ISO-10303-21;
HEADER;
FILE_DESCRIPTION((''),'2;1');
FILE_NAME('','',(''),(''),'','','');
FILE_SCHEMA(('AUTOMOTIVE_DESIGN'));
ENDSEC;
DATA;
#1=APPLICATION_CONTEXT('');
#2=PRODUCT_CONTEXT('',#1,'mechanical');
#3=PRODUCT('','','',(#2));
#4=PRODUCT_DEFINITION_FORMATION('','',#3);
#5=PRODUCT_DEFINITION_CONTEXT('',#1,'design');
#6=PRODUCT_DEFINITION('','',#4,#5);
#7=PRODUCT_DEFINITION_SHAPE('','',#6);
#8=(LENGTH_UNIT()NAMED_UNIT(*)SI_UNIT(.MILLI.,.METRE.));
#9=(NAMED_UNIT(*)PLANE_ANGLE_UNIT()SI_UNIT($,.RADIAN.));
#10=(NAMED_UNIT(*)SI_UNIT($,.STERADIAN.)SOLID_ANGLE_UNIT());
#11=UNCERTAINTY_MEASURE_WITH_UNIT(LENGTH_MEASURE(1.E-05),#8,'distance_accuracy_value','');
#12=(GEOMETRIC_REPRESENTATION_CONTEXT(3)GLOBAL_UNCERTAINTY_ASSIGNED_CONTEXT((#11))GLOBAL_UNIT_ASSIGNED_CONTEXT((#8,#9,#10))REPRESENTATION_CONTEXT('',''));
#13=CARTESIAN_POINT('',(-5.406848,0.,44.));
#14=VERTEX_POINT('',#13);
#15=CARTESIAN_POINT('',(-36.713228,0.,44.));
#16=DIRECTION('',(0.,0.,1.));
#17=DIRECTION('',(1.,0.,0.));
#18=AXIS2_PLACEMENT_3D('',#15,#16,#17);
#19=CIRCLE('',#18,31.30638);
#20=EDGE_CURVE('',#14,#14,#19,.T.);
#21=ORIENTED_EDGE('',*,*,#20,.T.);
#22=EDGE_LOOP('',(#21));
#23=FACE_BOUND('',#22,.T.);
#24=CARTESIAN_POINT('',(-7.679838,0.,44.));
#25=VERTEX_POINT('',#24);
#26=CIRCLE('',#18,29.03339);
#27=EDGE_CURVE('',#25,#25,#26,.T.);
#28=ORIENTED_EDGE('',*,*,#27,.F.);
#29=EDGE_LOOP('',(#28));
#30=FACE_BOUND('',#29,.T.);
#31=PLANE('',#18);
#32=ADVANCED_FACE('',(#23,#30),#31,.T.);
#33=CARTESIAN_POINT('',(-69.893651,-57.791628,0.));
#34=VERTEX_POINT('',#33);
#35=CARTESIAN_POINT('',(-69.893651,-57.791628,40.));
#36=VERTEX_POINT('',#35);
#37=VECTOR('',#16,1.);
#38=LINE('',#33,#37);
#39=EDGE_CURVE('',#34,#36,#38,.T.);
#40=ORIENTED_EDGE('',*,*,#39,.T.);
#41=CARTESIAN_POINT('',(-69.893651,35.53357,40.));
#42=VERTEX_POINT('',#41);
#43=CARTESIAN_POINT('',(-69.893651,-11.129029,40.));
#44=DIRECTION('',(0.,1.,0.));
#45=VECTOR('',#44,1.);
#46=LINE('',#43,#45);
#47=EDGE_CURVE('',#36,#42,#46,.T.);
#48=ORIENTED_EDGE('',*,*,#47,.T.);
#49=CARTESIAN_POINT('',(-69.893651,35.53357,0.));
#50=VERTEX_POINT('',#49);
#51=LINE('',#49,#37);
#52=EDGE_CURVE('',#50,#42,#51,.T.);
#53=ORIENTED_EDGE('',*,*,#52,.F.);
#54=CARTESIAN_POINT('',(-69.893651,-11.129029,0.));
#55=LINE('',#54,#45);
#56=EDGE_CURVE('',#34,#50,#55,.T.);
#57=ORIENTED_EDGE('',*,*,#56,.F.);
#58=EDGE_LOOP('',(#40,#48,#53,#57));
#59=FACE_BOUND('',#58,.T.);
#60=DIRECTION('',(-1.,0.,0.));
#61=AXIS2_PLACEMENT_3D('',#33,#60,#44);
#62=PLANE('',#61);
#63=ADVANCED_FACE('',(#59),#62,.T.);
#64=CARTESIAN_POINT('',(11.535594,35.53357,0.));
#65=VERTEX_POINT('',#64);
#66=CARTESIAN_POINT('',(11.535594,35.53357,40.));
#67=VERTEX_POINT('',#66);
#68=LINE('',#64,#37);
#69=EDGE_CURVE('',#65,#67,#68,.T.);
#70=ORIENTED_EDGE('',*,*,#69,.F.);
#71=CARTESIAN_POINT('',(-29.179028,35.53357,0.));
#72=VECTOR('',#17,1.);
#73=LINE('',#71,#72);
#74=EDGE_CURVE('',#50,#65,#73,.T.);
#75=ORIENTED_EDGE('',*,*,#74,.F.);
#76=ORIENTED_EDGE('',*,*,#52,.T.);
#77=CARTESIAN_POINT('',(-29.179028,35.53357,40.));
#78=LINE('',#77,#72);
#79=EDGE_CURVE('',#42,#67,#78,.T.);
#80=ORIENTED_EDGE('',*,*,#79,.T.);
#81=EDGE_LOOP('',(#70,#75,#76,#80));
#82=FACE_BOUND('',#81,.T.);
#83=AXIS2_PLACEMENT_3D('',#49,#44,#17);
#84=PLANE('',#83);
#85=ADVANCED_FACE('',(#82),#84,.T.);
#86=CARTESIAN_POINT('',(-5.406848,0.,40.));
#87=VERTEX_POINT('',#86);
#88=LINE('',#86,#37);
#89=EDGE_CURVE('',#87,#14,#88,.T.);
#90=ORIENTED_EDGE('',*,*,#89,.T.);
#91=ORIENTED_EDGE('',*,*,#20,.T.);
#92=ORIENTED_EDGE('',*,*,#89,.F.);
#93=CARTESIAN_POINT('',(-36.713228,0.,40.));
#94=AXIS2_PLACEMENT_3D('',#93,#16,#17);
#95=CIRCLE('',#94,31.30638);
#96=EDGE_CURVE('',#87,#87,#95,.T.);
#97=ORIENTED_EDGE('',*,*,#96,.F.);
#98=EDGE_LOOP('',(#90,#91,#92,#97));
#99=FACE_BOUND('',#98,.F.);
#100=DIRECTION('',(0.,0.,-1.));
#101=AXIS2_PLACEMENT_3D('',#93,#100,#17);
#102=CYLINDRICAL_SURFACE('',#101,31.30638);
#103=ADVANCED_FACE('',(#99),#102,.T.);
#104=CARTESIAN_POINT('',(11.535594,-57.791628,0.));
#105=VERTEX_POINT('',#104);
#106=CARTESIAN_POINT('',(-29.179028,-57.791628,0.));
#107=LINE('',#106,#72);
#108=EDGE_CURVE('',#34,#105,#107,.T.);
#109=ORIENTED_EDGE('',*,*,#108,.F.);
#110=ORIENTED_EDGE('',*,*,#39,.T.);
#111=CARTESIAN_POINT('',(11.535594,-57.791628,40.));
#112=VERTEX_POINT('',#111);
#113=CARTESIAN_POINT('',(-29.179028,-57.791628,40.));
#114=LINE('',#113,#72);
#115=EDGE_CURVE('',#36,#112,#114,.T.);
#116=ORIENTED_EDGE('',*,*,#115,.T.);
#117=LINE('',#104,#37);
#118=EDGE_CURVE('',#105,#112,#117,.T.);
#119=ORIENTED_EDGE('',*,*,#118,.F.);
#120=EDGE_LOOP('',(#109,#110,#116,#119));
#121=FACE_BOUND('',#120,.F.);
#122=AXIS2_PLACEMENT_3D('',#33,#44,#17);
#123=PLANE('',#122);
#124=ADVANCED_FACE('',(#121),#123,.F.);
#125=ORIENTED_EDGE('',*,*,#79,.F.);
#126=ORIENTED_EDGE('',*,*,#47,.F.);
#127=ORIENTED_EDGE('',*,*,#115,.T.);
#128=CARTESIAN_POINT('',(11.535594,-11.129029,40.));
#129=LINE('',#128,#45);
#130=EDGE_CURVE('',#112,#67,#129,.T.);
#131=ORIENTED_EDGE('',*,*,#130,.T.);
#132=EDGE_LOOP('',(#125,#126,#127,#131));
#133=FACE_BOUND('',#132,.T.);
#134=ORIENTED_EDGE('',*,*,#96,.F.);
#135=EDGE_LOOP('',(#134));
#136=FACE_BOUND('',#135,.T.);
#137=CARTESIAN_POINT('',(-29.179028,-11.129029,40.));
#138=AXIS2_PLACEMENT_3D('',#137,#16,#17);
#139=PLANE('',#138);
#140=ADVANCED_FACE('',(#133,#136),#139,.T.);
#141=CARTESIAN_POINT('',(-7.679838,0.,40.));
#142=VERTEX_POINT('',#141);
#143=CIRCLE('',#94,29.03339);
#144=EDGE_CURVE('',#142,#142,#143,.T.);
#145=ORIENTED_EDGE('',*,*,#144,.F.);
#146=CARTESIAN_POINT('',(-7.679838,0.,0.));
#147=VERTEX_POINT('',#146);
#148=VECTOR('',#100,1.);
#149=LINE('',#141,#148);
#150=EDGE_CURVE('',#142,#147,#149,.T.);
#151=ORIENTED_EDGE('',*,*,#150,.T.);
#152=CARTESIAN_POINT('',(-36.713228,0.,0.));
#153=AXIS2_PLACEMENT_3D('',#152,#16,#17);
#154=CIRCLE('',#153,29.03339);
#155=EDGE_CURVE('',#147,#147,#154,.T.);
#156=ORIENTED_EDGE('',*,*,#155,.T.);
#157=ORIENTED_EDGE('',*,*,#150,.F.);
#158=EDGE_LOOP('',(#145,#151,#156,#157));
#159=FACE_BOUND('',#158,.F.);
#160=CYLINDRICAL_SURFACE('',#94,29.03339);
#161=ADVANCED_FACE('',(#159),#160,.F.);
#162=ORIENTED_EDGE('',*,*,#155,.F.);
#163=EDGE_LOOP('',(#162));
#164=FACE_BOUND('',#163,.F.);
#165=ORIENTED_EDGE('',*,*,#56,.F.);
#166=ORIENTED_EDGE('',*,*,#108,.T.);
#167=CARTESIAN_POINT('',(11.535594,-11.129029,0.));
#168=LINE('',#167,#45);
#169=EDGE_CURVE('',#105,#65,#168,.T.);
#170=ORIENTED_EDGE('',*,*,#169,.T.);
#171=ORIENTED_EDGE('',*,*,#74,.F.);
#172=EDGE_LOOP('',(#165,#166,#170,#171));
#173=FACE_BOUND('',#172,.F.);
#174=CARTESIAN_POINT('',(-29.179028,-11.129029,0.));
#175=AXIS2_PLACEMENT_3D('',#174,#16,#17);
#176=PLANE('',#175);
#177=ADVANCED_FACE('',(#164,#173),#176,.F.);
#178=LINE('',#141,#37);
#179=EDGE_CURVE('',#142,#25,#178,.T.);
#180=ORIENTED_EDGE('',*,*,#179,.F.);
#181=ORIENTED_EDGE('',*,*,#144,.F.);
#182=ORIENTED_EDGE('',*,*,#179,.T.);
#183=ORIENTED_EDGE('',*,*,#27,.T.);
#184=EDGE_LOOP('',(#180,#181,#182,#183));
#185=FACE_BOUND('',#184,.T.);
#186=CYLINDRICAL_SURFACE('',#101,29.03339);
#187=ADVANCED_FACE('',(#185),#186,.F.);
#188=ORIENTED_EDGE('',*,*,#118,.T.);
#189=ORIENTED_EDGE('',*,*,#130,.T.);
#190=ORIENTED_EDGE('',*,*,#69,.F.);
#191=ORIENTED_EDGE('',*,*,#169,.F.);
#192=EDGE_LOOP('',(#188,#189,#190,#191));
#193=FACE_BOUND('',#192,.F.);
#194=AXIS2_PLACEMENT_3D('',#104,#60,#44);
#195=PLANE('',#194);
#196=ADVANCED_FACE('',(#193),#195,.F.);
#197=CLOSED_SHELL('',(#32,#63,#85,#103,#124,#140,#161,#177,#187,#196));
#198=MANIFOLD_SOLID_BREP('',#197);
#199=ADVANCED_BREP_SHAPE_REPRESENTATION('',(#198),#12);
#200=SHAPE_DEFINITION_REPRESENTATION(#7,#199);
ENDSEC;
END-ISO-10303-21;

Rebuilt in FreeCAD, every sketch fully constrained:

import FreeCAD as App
import Part
import Sketcher


def add_polygon(sketch, points):
    """Adds a closed chain of lines whose ends are joined by coincident constraints."""
    first, n = sketch.GeometryCount, len(points)
    for a, b in zip(points, points[1:] + points[:1]):
        sketch.addGeometry(Part.LineSegment(App.Vector(*a, 0), App.Vector(*b, 0)), False)
    for i in range(n):
        sketch.addConstraint(Sketcher.Constraint("Coincident", first + i, 2, first + (i + 1) % n, 1))

doc = App.newDocument("Part")
body = doc.addObject("PartDesign::Body", "Body")

# Sketch on XY plane
sketch1 = body.newObject("Sketcher::SketchObject", "Sketch")
sketch1.AttachmentSupport = (doc.getObject("XY_Plane"), [""])
sketch1.MapMode = "FlatFace"
add_polygon(sketch1, [(-70, 36), (-70, -58), (12, -58), (12, 36)])  # lines 0-3
sketch1.addConstraint(Sketcher.Constraint("Vertical", 0))
sketch1.addConstraint(Sketcher.Constraint("Horizontal", 1))
sketch1.addConstraint(Sketcher.Constraint("Vertical", 2))
sketch1.addConstraint(Sketcher.Constraint("Horizontal", 3))
sketch1.addConstraint(Sketcher.Constraint("DistanceX", 1, 1, 1, 2, 81.429245))
sketch1.addConstraint(Sketcher.Constraint("DistanceY", 0, 2, 0, 1, 93.325198))
sketch1.addConstraint(Sketcher.Constraint("DistanceX", 0, 2, -1, 1, 69.893651))
sketch1.addConstraint(Sketcher.Constraint("DistanceY", -1, 1, 2, 2, 35.53357))
pad1 = body.newObject("PartDesign::Pad", "Pad")
pad1.Profile = sketch1
pad1.Length = 40

# Sketch on XY plane
sketch2 = body.newObject("Sketcher::SketchObject", "Sketch001")
sketch2.AttachmentSupport = (doc.getObject("XY_Plane"), [""])
sketch2.MapMode = "FlatFace"
sketch2.AttachmentOffset = App.Placement(App.Vector(0, 0, 40), App.Rotation())
sketch2.addGeometry(Part.Circle(App.Vector(-37, 0, 0), App.Vector(0, 0, 1), 29), False)
sketch2.addConstraint(Sketcher.Constraint("PointOnObject", 0, 3, -1))
sketch2.addConstraint(Sketcher.Constraint("Diameter", 0, 58.06678))
sketch2.addConstraint(Sketcher.Constraint("DistanceX", 0, 3, -1, 1, 36.713228))
pocket1 = body.newObject("PartDesign::Pocket", "Pocket")
pocket1.Profile = sketch2
pocket1.Length = 50

# Sketch on XY plane
sketch3 = body.newObject("Sketcher::SketchObject", "Sketch002")
sketch3.AttachmentSupport = (doc.getObject("XY_Plane"), [""])
sketch3.MapMode = "FlatFace"
sketch3.AttachmentOffset = App.Placement(App.Vector(0, 0, 40), App.Rotation())
sketch3.addGeometry(Part.Circle(App.Vector(-37, 0, 0), App.Vector(0, 0, 1), 31), False)
sketch3.addGeometry(Part.Circle(App.Vector(-37, 0, 0), App.Vector(0, 0, 1), 29), False)
sketch3.addConstraint(Sketcher.Constraint("Coincident", 1, 3, 0, 3))
sketch3.addConstraint(Sketcher.Constraint("PointOnObject", 0, 3, -1))
sketch3.addConstraint(Sketcher.Constraint("Diameter", 0, 62.61276))
sketch3.addConstraint(Sketcher.Constraint("Diameter", 1, 58.06678))
sketch3.addConstraint(Sketcher.Constraint("DistanceX", 0, 3, -1, 1, 36.713228))
pad2 = body.newObject("PartDesign::Pad", "Pad001")
pad2.Profile = sketch3
pad2.Length = 4

doc.recompute()
